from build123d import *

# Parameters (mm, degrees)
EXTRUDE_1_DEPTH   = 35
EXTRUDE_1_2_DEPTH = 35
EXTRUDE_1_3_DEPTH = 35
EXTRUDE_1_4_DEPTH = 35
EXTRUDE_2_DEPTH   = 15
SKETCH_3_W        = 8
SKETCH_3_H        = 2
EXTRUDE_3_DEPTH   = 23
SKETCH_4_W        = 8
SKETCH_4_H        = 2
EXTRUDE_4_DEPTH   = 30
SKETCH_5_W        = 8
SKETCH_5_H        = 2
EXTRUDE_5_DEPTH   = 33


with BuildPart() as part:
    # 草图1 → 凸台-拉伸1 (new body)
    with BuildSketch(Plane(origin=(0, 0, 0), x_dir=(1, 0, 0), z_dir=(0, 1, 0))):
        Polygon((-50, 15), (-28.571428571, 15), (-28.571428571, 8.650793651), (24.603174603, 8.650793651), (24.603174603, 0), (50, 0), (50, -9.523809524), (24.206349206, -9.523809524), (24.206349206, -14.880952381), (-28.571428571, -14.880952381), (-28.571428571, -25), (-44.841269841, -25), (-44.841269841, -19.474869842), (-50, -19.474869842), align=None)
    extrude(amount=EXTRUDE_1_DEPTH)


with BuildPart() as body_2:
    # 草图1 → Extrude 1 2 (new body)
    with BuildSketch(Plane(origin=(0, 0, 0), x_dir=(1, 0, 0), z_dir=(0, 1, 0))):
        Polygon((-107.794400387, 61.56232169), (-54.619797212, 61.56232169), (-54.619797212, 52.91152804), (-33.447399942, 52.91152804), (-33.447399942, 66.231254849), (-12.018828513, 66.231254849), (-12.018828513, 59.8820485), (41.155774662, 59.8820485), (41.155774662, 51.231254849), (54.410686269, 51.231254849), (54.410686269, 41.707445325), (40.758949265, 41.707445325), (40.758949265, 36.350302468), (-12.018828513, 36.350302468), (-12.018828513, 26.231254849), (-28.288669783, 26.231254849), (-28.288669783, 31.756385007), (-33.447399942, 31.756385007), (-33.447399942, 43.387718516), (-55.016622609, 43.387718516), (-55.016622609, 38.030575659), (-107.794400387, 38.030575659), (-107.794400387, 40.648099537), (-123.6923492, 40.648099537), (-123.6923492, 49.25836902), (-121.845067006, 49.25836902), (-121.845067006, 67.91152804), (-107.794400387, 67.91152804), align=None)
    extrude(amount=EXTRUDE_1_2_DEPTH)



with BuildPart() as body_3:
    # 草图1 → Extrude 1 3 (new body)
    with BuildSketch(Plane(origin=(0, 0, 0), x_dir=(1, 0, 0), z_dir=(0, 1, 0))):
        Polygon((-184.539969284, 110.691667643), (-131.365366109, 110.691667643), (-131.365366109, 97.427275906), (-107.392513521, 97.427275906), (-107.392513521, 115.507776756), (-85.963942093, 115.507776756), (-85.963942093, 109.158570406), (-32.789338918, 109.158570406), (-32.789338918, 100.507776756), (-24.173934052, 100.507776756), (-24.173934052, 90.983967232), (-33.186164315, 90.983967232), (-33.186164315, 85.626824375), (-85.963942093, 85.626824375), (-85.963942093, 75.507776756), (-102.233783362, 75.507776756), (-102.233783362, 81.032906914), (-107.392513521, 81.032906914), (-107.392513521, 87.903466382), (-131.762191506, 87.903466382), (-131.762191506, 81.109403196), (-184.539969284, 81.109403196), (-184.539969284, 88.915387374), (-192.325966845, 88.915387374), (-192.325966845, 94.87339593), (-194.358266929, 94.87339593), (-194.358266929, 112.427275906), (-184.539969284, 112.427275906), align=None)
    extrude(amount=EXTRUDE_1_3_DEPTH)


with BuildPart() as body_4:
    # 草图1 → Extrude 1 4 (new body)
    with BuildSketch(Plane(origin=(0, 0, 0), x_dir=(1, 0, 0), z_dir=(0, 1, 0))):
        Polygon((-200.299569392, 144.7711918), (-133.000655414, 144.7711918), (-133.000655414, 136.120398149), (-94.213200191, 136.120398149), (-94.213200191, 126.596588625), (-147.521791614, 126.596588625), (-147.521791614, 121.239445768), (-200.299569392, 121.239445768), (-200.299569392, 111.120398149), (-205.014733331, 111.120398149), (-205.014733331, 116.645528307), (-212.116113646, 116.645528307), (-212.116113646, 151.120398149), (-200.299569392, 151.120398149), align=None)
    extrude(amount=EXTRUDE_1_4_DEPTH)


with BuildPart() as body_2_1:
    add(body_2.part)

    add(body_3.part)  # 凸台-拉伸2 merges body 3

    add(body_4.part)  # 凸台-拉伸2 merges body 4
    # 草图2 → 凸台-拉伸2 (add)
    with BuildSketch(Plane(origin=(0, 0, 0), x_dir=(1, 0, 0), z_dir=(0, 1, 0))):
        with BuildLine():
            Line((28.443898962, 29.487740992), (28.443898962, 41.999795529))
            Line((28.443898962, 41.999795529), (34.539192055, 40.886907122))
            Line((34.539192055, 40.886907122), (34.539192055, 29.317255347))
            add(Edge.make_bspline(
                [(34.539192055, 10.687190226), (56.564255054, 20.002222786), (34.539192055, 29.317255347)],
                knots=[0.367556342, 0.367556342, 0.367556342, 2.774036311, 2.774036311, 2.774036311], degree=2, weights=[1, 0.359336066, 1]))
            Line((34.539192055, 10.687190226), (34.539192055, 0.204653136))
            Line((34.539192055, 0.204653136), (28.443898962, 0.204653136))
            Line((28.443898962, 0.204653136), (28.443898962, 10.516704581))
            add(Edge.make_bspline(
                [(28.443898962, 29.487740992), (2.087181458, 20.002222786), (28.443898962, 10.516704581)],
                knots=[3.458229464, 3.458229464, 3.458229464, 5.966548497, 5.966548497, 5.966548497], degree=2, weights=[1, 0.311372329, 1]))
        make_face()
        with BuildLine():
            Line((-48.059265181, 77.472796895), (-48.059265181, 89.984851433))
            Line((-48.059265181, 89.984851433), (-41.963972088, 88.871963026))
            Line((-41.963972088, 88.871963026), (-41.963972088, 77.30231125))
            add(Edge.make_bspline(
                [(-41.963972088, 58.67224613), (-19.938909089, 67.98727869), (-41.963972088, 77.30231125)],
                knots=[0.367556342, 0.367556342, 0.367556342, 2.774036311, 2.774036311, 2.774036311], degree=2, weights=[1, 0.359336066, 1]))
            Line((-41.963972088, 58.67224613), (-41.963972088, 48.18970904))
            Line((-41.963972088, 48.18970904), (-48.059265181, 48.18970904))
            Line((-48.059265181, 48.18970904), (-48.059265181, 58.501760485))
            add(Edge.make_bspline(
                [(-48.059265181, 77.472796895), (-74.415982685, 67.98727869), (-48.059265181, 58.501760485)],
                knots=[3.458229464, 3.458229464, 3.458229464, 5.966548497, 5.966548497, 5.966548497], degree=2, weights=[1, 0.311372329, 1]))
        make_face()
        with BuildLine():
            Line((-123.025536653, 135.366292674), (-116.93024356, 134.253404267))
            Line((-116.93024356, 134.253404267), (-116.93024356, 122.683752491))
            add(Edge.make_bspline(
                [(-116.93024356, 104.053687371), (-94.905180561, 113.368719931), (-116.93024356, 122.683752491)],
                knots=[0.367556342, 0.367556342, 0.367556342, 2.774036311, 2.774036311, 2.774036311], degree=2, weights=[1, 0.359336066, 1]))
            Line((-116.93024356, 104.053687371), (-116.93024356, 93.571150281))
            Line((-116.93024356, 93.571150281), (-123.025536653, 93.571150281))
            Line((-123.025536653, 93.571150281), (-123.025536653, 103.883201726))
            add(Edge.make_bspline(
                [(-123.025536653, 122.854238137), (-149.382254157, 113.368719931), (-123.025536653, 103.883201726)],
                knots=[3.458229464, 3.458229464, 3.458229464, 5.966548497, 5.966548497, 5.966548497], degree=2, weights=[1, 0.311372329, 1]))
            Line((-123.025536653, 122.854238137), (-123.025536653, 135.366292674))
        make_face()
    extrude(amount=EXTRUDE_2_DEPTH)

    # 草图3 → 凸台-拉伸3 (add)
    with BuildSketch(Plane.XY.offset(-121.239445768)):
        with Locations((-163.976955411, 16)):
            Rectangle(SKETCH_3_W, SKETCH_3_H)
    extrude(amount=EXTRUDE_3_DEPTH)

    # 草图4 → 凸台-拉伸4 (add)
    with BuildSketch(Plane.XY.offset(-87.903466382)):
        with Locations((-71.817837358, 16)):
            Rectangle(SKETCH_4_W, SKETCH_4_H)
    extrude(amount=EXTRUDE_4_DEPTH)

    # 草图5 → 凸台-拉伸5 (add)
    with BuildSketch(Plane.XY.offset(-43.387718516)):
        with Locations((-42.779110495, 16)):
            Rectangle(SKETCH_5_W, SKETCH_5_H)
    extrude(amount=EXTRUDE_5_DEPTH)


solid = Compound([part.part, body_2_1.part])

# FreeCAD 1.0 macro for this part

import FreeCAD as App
import Part
import Sketcher
from FreeCAD import Vector

doc = App.newDocument("Part")
body = doc.addObject("PartDesign::Body", "Body")

sketch1 = body.newObject("Sketcher::SketchObject", "Sketch")
sketch1.AttachmentSupport = (doc.getObject("XZ_Plane"), [""])
sketch1.MapMode = "FlatFace"
sketch1.addGeometry([
    Part.LineSegment(Vector(-29, -15, 0), Vector(-50, -15, 0)),
    Part.LineSegment(Vector(-50, -15, 0), Vector(-50, 19, 0)),
    Part.LineSegment(Vector(-50, 19, 0), Vector(-45, 19, 0)),
    Part.LineSegment(Vector(-45, 19, 0), Vector(-45, 25, 0)),
    Part.LineSegment(Vector(-45, 25, 0), Vector(-29, 25, 0)),
    Part.LineSegment(Vector(-29, 25, 0), Vector(-29, 15, 0)),
    Part.LineSegment(Vector(-29, 15, 0), Vector(24, 15, 0)),
    Part.LineSegment(Vector(24, 15, 0), Vector(24, 10, 0)),
    Part.LineSegment(Vector(24, 10, 0), Vector(50, 10, 0)),
    Part.LineSegment(Vector(50, 10, 0), Vector(50, 0, 0)),
    Part.LineSegment(Vector(50, 0, 0), Vector(25, 0, 0)),
    Part.LineSegment(Vector(25, 0, 0), Vector(25, -9, 0)),
    Part.LineSegment(Vector(25, -9, 0), Vector(-29, -9, 0)),
    Part.LineSegment(Vector(-29, -9, 0), Vector(-29, -15, 0)),
], False)
sketch1.addConstraint([
    Sketcher.Constraint("Coincident", 0, 2, 1, 1),
    Sketcher.Constraint("Coincident", 1, 2, 2, 1),
    Sketcher.Constraint("Coincident", 2, 2, 3, 1),
    Sketcher.Constraint("Coincident", 3, 2, 4, 1),
    Sketcher.Constraint("Coincident", 4, 2, 5, 1),
    Sketcher.Constraint("Coincident", 5, 2, 6, 1),
    Sketcher.Constraint("Coincident", 6, 2, 7, 1),
    Sketcher.Constraint("Coincident", 7, 2, 8, 1),
    Sketcher.Constraint("Coincident", 8, 2, 9, 1),
    Sketcher.Constraint("Coincident", 9, 2, 10, 1),
    Sketcher.Constraint("Coincident", 10, 2, 11, 1),
    Sketcher.Constraint("Coincident", 11, 2, 12, 1),
    Sketcher.Constraint("Coincident", 12, 2, 13, 1),
    Sketcher.Constraint("Coincident", 13, 2, 0, 1),
    Sketcher.Constraint("Horizontal", 0),
    Sketcher.Constraint("Vertical", 1),
    Sketcher.Constraint("Horizontal", 2),
    Sketcher.Constraint("Vertical", 3),
    Sketcher.Constraint("Horizontal", 4),
    Sketcher.Constraint("Vertical", 5),
    Sketcher.Constraint("Horizontal", 6),
    Sketcher.Constraint("Vertical", 7),
    Sketcher.Constraint("Horizontal", 8),
    Sketcher.Constraint("Vertical", 9),
    Sketcher.Constraint("Horizontal", 10),
    Sketcher.Constraint("Vertical", 11),
    Sketcher.Constraint("Horizontal", 12),
    Sketcher.Constraint("Vertical", 13),
    Sketcher.Constraint("PointOnObject", 9, 2, -1),
    Sketcher.Constraint("Vertical", 5, 2, 12, 2),
    Sketcher.Constraint("DistanceX", 0, 2, -1, 1, 50.0),
    Sketcher.Constraint("DistanceY", 0, 2, -1, 1, 15.0),
    Sketcher.Constraint("DistanceY", -1, 1, 3, 2, 25.0),
    Sketcher.Constraint("DistanceX", -1, 1, 8, 2, 50.0),
    Sketcher.Constraint("DistanceX", 0, 2, 0, 1, 21.428571),
    Sketcher.Constraint("DistanceX", 2, 1, 2, 2, 5.15873),
    Sketcher.Constraint("DistanceX", 8, 1, 8, 2, 25.793651),
    Sketcher.Constraint("DistanceY", 1, 1, 1, 2, 34.47487),
    Sketcher.Constraint("DistanceY", 9, 2, 9, 1, 9.52381),
    Sketcher.Constraint("DistanceX", 10, 2, 10, 1, 25.396825),
    Sketcher.Constraint("DistanceY", 5, 2, 5, 1, 10.119048),
    Sketcher.Constraint("DistanceY", 11, 2, 11, 1, 8.650794),
])
pad1 = body.newObject("PartDesign::Pad", "Pad")
pad1.Profile = sketch1
pad1.Length = 35
pad1.Reversed = True
body2 = doc.addObject("PartDesign::Body", "Body001")

sketch2 = body2.newObject("Sketcher::SketchObject", "Sketch001")
sketch2.AttachmentSupport = (doc.getObject("XZ_Plane001"), [""])
sketch2.MapMode = "FlatFace"
sketch2.addGeometry([
    Part.LineSegment(Vector(-54.6, -61.6, 0), Vector(-107.8, -61.6, 0)),
    Part.LineSegment(Vector(-107.8, -61.6, 0), Vector(-107.8, -67.9, 0)),
    Part.LineSegment(Vector(-107.8, -67.9, 0), Vector(-121.8, -67.9, 0)),
    Part.LineSegment(Vector(-121.8, -67.9, 0), Vector(-121.8, -49.3, 0)),
    Part.LineSegment(Vector(-121.8, -49.3, 0), Vector(-123.7, -49.3, 0)),
    Part.LineSegment(Vector(-123.7, -49.3, 0), Vector(-123.7, -40.6, 0)),
    Part.LineSegment(Vector(-123.7, -40.6, 0), Vector(-107.8, -40.6, 0)),
    Part.LineSegment(Vector(-107.8, -40.6, 0), Vector(-107.8, -38, 0)),
    Part.LineSegment(Vector(-107.8, -38, 0), Vector(-55, -38, 0)),
    Part.LineSegment(Vector(-55, -38, 0), Vector(-55, -43.4, 0)),
    Part.LineSegment(Vector(-55, -43.4, 0), Vector(-33.4, -43.4, 0)),
    Part.LineSegment(Vector(-33.4, -43.4, 0), Vector(-33.4, -31.8, 0)),
    Part.LineSegment(Vector(-33.4, -31.8, 0), Vector(-28.3, -31.8, 0)),
    Part.LineSegment(Vector(-28.3, -31.8, 0), Vector(-28.3, -26.2, 0)),
    Part.LineSegment(Vector(-28.3, -26.2, 0), Vector(-12, -26.2, 0)),
    Part.LineSegment(Vector(-12, -26.2, 0), Vector(-12, -36.4, 0)),
    Part.LineSegment(Vector(-12, -36.4, 0), Vector(40.8, -36.4, 0)),
    Part.LineSegment(Vector(40.8, -36.4, 0), Vector(40.8, -41.7, 0)),
    Part.LineSegment(Vector(40.8, -41.7, 0), Vector(54.4, -41.7, 0)),
    Part.LineSegment(Vector(54.4, -41.7, 0), Vector(54.4, -51.2, 0)),
    Part.LineSegment(Vector(54.4, -51.2, 0), Vector(41.2, -51.2, 0)),
    Part.LineSegment(Vector(41.2, -51.2, 0), Vector(41.2, -59.9, 0)),
    Part.LineSegment(Vector(41.2, -59.9, 0), Vector(-12, -59.9, 0)),
    Part.LineSegment(Vector(-12, -59.9, 0), Vector(-12, -66.2, 0)),
    Part.LineSegment(Vector(-12, -66.2, 0), Vector(-33.4, -66.2, 0)),
    Part.LineSegment(Vector(-33.4, -66.2, 0), Vector(-33.4, -52.9, 0)),
    Part.LineSegment(Vector(-33.4, -52.9, 0), Vector(-54.6, -52.9, 0)),
    Part.LineSegment(Vector(-54.6, -52.9, 0), Vector(-54.6, -61.6, 0)),
], False)
sketch2.addConstraint([
    Sketcher.Constraint("Coincident", 0, 2, 1, 1),
    Sketcher.Constraint("Coincident", 1, 2, 2, 1),
    Sketcher.Constraint("Coincident", 2, 2, 3, 1),
    Sketcher.Constraint("Coincident", 3, 2, 4, 1),
    Sketcher.Constraint("Coincident", 4, 2, 5, 1),
    Sketcher.Constraint("Coincident", 5, 2, 6, 1),
    Sketcher.Constraint("Coincident", 6, 2, 7, 1),
    Sketcher.Constraint("Coincident", 7, 2, 8, 1),
    Sketcher.Constraint("Coincident", 8, 2, 9, 1),
    Sketcher.Constraint("Coincident", 9, 2, 10, 1),
    Sketcher.Constraint("Coincident", 10, 2, 11, 1),
    Sketcher.Constraint("Coincident", 11, 2, 12, 1),
    Sketcher.Constraint("Coincident", 12, 2, 13, 1),
    Sketcher.Constraint("Coincident", 13, 2, 14, 1),
    Sketcher.Constraint("Coincident", 14, 2, 15, 1),
    Sketcher.Constraint("Coincident", 15, 2, 16, 1),
    Sketcher.Constraint("Coincident", 16, 2, 17, 1),
    Sketcher.Constraint("Coincident", 17, 2, 18, 1),
    Sketcher.Constraint("Coincident", 18, 2, 19, 1),
    Sketcher.Constraint("Coincident", 19, 2, 20, 1),
    Sketcher.Constraint("Coincident", 20, 2, 21, 1),
    Sketcher.Constraint("Coincident", 21, 2, 22, 1),
    Sketcher.Constraint("Coincident", 22, 2, 23, 1),
    Sketcher.Constraint("Coincident", 23, 2, 24, 1),
    Sketcher.Constraint("Coincident", 24, 2, 25, 1),
    Sketcher.Constraint("Coincident", 25, 2, 26, 1),
    Sketcher.Constraint("Coincident", 26, 2, 27, 1),
    Sketcher.Constraint("Coincident", 27, 2, 0, 1),
    Sketcher.Constraint("Horizontal", 0),
    Sketcher.Constraint("Vertical", 1),
    Sketcher.Constraint("Horizontal", 2),
    Sketcher.Constraint("Vertical", 3),
    Sketcher.Constraint("Horizontal", 4),
    Sketcher.Constraint("Vertical", 5),
    Sketcher.Constraint("Horizontal", 6),
    Sketcher.Constraint("Vertical", 7),
    Sketcher.Constraint("Horizontal", 8),
    Sketcher.Constraint("Vertical", 9),
    Sketcher.Constraint("Horizontal", 10),
    Sketcher.Constraint("Vertical", 11),
    Sketcher.Constraint("Horizontal", 12),
    Sketcher.Constraint("Vertical", 13),
    Sketcher.Constraint("Horizontal", 14),
    Sketcher.Constraint("Vertical", 15),
    Sketcher.Constraint("Horizontal", 16),
    Sketcher.Constraint("Vertical", 17),
    Sketcher.Constraint("Horizontal", 18),
    Sketcher.Constraint("Vertical", 19),
    Sketcher.Constraint("Horizontal", 20),
    Sketcher.Constraint("Vertical", 21),
    Sketcher.Constraint("Horizontal", 22),
    Sketcher.Constraint("Vertical", 23),
    Sketcher.Constraint("Horizontal", 24),
    Sketcher.Constraint("Vertical", 25),
    Sketcher.Constraint("Horizontal", 26),
    Sketcher.Constraint("Vertical", 27),
    Sketcher.Constraint("Vertical", 1, 2, 6, 2),
    Sketcher.Constraint("Vertical", 15, 2, 22, 2),
    Sketcher.Constraint("Vertical", 11, 2, 24, 2),
    Sketcher.Constraint("Equal", 8, 16),
    Sketcher.Constraint("Equal", 0, 22),
    Sketcher.Constraint("Equal", 9, 17),
    Sketcher.Constraint("Equal", 1, 23),
    Sketcher.Constraint("Equal", 21, 27),
    Sketcher.Constraint("DistanceY", 19, 2, 14, 2, 25.0),
    Sketcher.Constraint("DistanceY", 23, 2, 14, 2, 40.0),
    Sketcher.Constraint("DistanceX", 6, 2, 10, 2, 74.347),
    Sketcher.Constraint("DistanceX", 6, 1, 6, 2, 15.897949),
    Sketcher.Constraint("DistanceX", 12, 1, 12, 2, 5.15873),
    Sketcher.Constraint("DistanceX", 14, 1, 14, 2, 16.269841),
    Sketcher.Constraint("DistanceX", 20, 2, 20, 1, 13.254912),
    Sketcher.Constraint("DistanceY", 3, 1, 3, 2, 18.653159),
    Sketcher.Constraint("DistanceY", 5, 1, 5, 2, 8.610269),
    Sketcher.Constraint("DistanceY", 13, 1, 13, 2, 5.52513),
    Sketcher.Constraint("DistanceY", 19, 2, 19, 1, 9.52381),
    Sketcher.Constraint("DistanceX", 0, 2, -1, 1, 107.7944),
    Sketcher.Constraint("DistanceY", 5, 2, -1, 1, 40.6481),
    Sketcher.Constraint("DistanceX", 0, 2, 0, 1, 53.174603),
    Sketcher.Constraint("DistanceX", 2, 2, 2, 1, 14.050667),
    Sketcher.Constraint("DistanceX", 8, 1, 8, 2, 52.777778),
    Sketcher.Constraint("DistanceY", 1, 2, 1, 1, 6.349206),
    Sketcher.Constraint("DistanceY", 7, 1, 7, 2, 2.617524),
    Sketcher.Constraint("DistanceY", 9, 2, 9, 1, 5.357143),
    Sketcher.Constraint("DistanceY", 11, 1, 11, 2, 11.631334),
])
pad2 = body2.newObject("PartDesign::Pad", "Pad001")
pad2.Profile = sketch2
pad2.Length = 35
pad2.Reversed = True
body3 = doc.addObject("PartDesign::Body", "Body002")

sketch3 = body3.newObject("Sketcher::SketchObject", "Sketch002")
sketch3.AttachmentSupport = (doc.getObject("XZ_Plane002"), [""])
sketch3.MapMode = "FlatFace"
sketch3.addGeometry([
    Part.LineSegment(Vector(-131.4, -110.7, 0), Vector(-184.5, -110.7, 0)),
    Part.LineSegment(Vector(-184.5, -110.7, 0), Vector(-184.5, -112.4, 0)),
    Part.LineSegment(Vector(-184.5, -112.4, 0), Vector(-194.4, -112.4, 0)),
    Part.LineSegment(Vector(-194.4, -112.4, 0), Vector(-194.4, -94.9, 0)),
    Part.LineSegment(Vector(-194.4, -94.9, 0), Vector(-192.3, -94.9, 0)),
    Part.LineSegment(Vector(-192.3, -94.9, 0), Vector(-192.3, -88.9, 0)),
    Part.LineSegment(Vector(-192.3, -88.9, 0), Vector(-184.5, -88.9, 0)),
    Part.LineSegment(Vector(-184.5, -88.9, 0), Vector(-184.5, -81.1, 0)),
    Part.LineSegment(Vector(-184.5, -81.1, 0), Vector(-131.8, -81.1, 0)),
    Part.LineSegment(Vector(-131.8, -81.1, 0), Vector(-131.8, -87.9, 0)),
    Part.LineSegment(Vector(-131.8, -87.9, 0), Vector(-107.4, -87.9, 0)),
    Part.LineSegment(Vector(-107.4, -87.9, 0), Vector(-107.4, -81, 0)),
    Part.LineSegment(Vector(-107.4, -81, 0), Vector(-102.2, -81, 0)),
    Part.LineSegment(Vector(-102.2, -81, 0), Vector(-102.2, -75.5, 0)),
    Part.LineSegment(Vector(-102.2, -75.5, 0), Vector(-86, -75.5, 0)),
    Part.LineSegment(Vector(-86, -75.5, 0), Vector(-86, -85.6, 0)),
    Part.LineSegment(Vector(-86, -85.6, 0), Vector(-33.2, -85.6, 0)),
    Part.LineSegment(Vector(-33.2, -85.6, 0), Vector(-33.2, -91, 0)),
    Part.LineSegment(Vector(-33.2, -91, 0), Vector(-24.2, -91, 0)),
    Part.LineSegment(Vector(-24.2, -91, 0), Vector(-24.2, -100.5, 0)),
    Part.LineSegment(Vector(-24.2, -100.5, 0), Vector(-32.8, -100.5, 0)),
    Part.LineSegment(Vector(-32.8, -100.5, 0), Vector(-32.8, -109.2, 0)),
    Part.LineSegment(Vector(-32.8, -109.2, 0), Vector(-86, -109.2, 0)),
    Part.LineSegment(Vector(-86, -109.2, 0), Vector(-86, -115.5, 0)),
    Part.LineSegment(Vector(-86, -115.5, 0), Vector(-107.4, -115.5, 0)),
    Part.LineSegment(Vector(-107.4, -115.5, 0), Vector(-107.4, -97.4, 0)),
    Part.LineSegment(Vector(-107.4, -97.4, 0), Vector(-131.4, -97.4, 0)),
    Part.LineSegment(Vector(-131.4, -97.4, 0), Vector(-131.4, -110.7, 0)),
], False)
sketch3.addConstraint([
    Sketcher.Constraint("Coincident", 0, 2, 1, 1),
    Sketcher.Constraint("Coincident", 1, 2, 2, 1),
    Sketcher.Constraint("Coincident", 2, 2, 3, 1),
    Sketcher.Constraint("Coincident", 3, 2, 4, 1),
    Sketcher.Constraint("Coincident", 4, 2, 5, 1),
    Sketcher.Constraint("Coincident", 5, 2, 6, 1),
    Sketcher.Constraint("Coincident", 6, 2, 7, 1),
    Sketcher.Constraint("Coincident", 7, 2, 8, 1),
    Sketcher.Constraint("Coincident", 8, 2, 9, 1),
    Sketcher.Constraint("Coincident", 9, 2, 10, 1),
    Sketcher.Constraint("Coincident", 10, 2, 11, 1),
    Sketcher.Constraint("Coincident", 11, 2, 12, 1),
    Sketcher.Constraint("Coincident", 12, 2, 13, 1),
    Sketcher.Constraint("Coincident", 13, 2, 14, 1),
    Sketcher.Constraint("Coincident", 14, 2, 15, 1),
    Sketcher.Constraint("Coincident", 15, 2, 16, 1),
    Sketcher.Constraint("Coincident", 16, 2, 17, 1),
    Sketcher.Constraint("Coincident", 17, 2, 18, 1),
    Sketcher.Constraint("Coincident", 18, 2, 19, 1),
    Sketcher.Constraint("Coincident", 19, 2, 20, 1),
    Sketcher.Constraint("Coincident", 20, 2, 21, 1),
    Sketcher.Constraint("Coincident", 21, 2, 22, 1),
    Sketcher.Constraint("Coincident", 22, 2, 23, 1),
    Sketcher.Constraint("Coincident", 23, 2, 24, 1),
    Sketcher.Constraint("Coincident", 24, 2, 25, 1),
    Sketcher.Constraint("Coincident", 25, 2, 26, 1),
    Sketcher.Constraint("Coincident", 26, 2, 27, 1),
    Sketcher.Constraint("Coincident", 27, 2, 0, 1),
    Sketcher.Constraint("Horizontal", 0),
    Sketcher.Constraint("Vertical", 1),
    Sketcher.Constraint("Horizontal", 2),
    Sketcher.Constraint("Vertical", 3),
    Sketcher.Constraint("Horizontal", 4),
    Sketcher.Constraint("Vertical", 5),
    Sketcher.Constraint("Horizontal", 6),
    Sketcher.Constraint("Vertical", 7),
    Sketcher.Constraint("Horizontal", 8),
    Sketcher.Constraint("Vertical", 9),
    Sketcher.Constraint("Horizontal", 10),
    Sketcher.Constraint("Vertical", 11),
    Sketcher.Constraint("Horizontal", 12),
    Sketcher.Constraint("Vertical", 13),
    Sketcher.Constraint("Horizontal", 14),
    Sketcher.Constraint("Vertical", 15),
    Sketcher.Constraint("Horizontal", 16),
    Sketcher.Constraint("Vertical", 17),
    Sketcher.Constraint("Horizontal", 18),
    Sketcher.Constraint("Vertical", 19),
    Sketcher.Constraint("Horizontal", 20),
    Sketcher.Constraint("Vertical", 21),
    Sketcher.Constraint("Horizontal", 22),
    Sketcher.Constraint("Vertical", 23),
    Sketcher.Constraint("Horizontal", 24),
    Sketcher.Constraint("Vertical", 25),
    Sketcher.Constraint("Horizontal", 26),
    Sketcher.Constraint("Vertical", 27),
    Sketcher.Constraint("Vertical", 1, 2, 6, 2),
    Sketcher.Constraint("Vertical", 15, 2, 22, 2),
    Sketcher.Constraint("Vertical", 11, 2, 24, 2),
    Sketcher.Constraint("Equal", 8, 16),
    Sketcher.Constraint("Equal", 0, 22),
    Sketcher.Constraint("DistanceY", 19, 2, 14, 2, 25.0),
    Sketcher.Constraint("DistanceY", 23, 2, 14, 2, 40.0),
    Sketcher.Constraint("DistanceX", 4, 1, 4, 2, 2.0323),
    Sketcher.Constraint("DistanceY", 25, 1, 25, 2, 18.080501),
    Sketcher.Constraint("DistanceX", 12, 1, 12, 2, 5.15873),
    Sketcher.Constraint("DistanceX", 14, 1, 14, 2, 16.269841),
    Sketcher.Constraint("DistanceX", 18, 1, 18, 2, 9.01223),
    Sketcher.Constraint("DistanceY", 1, 2, 1, 1, 1.735608),
    Sketcher.Constraint("DistanceY", 3, 1, 3, 2, 17.55388),
    Sketcher.Constraint("DistanceY", 5, 1, 5, 2, 5.958009),
    Sketcher.Constraint("DistanceY", 11, 1, 11, 2, 6.870559),
    Sketcher.Constraint("DistanceY", 13, 1, 13, 2, 5.52513),
    Sketcher.Constraint("DistanceY", 19, 2, 19, 1, 9.52381),
    Sketcher.Constraint("DistanceY", 27, 2, 27, 1, 13.264392),
    Sketcher.Constraint("DistanceX", 0, 2, 0, 1, 53.174603),
    Sketcher.Constraint("DistanceX", 2, 2, 2, 1, 9.818298),
    Sketcher.Constraint("DistanceX", 8, 1, 8, 2, 52.777778),
    Sketcher.Constraint("DistanceX", 10, 1, 10, 2, 24.369678),
    Sketcher.Constraint("DistanceY", 7, 1, 7, 2, 7.805984),
    Sketcher.Constraint("DistanceY", 15, 2, 15, 1, 10.119048),
    Sketcher.Constraint("DistanceY", 21, 2, 21, 1, 8.650794),
    Sketcher.Constraint("DistanceX", 0, 2, -1, 1, 184.539969),
    Sketcher.Constraint("DistanceY", 21, 2, -1, 1, 109.15857),
])
pad3 = body3.newObject("PartDesign::Pad", "Pad002")
pad3.Profile = sketch3
pad3.Length = 35
pad3.Reversed = True
body4 = doc.addObject("PartDesign::Body", "Body003")

sketch4 = body4.newObject("Sketcher::SketchObject", "Sketch003")
sketch4.AttachmentSupport = (doc.getObject("XZ_Plane003"), [""])
sketch4.MapMode = "FlatFace"
sketch4.addGeometry([
    Part.LineSegment(Vector(-133, -144.8, 0), Vector(-200.3, -144.8, 0)),
    Part.LineSegment(Vector(-200.3, -144.8, 0), Vector(-200.3, -151.1, 0)),
    Part.LineSegment(Vector(-200.3, -151.1, 0), Vector(-212.1, -151.1, 0)),
    Part.LineSegment(Vector(-212.1, -151.1, 0), Vector(-212.1, -116.6, 0)),
    Part.LineSegment(Vector(-212.1, -116.6, 0), Vector(-205, -116.6, 0)),
    Part.LineSegment(Vector(-205, -116.6, 0), Vector(-205, -111.1, 0)),
    Part.LineSegment(Vector(-205, -111.1, 0), Vector(-200.3, -111.1, 0)),
    Part.LineSegment(Vector(-200.3, -111.1, 0), Vector(-200.3, -121.2, 0)),
    Part.LineSegment(Vector(-200.3, -121.2, 0), Vector(-147.5, -121.2, 0)),
    Part.LineSegment(Vector(-147.5, -121.2, 0), Vector(-147.5, -126.6, 0)),
    Part.LineSegment(Vector(-147.5, -126.6, 0), Vector(-94.2, -126.6, 0)),
    Part.LineSegment(Vector(-94.2, -126.6, 0), Vector(-94.2, -136.1, 0)),
    Part.LineSegment(Vector(-94.2, -136.1, 0), Vector(-133, -136.1, 0)),
    Part.LineSegment(Vector(-133, -136.1, 0), Vector(-133, -144.8, 0)),
], False)
sketch4.addConstraint([
    Sketcher.Constraint("Coincident", 0, 2, 1, 1),
    Sketcher.Constraint("Coincident", 1, 2, 2, 1),
    Sketcher.Constraint("Coincident", 2, 2, 3, 1),
    Sketcher.Constraint("Coincident", 3, 2, 4, 1),
    Sketcher.Constraint("Coincident", 4, 2, 5, 1),
    Sketcher.Constraint("Coincident", 5, 2, 6, 1),
    Sketcher.Constraint("Coincident", 6, 2, 7, 1),
    Sketcher.Constraint("Coincident", 7, 2, 8, 1),
    Sketcher.Constraint("Coincident", 8, 2, 9, 1),
    Sketcher.Constraint("Coincident", 9, 2, 10, 1),
    Sketcher.Constraint("Coincident", 10, 2, 11, 1),
    Sketcher.Constraint("Coincident", 11, 2, 12, 1),
    Sketcher.Constraint("Coincident", 12, 2, 13, 1),
    Sketcher.Constraint("Coincident", 13, 2, 0, 1),
    Sketcher.Constraint("Horizontal", 0),
    Sketcher.Constraint("Vertical", 1),
    Sketcher.Constraint("Horizontal", 2),
    Sketcher.Constraint("Vertical", 3),
    Sketcher.Constraint("Horizontal", 4),
    Sketcher.Constraint("Vertical", 5),
    Sketcher.Constraint("Horizontal", 6),
    Sketcher.Constraint("Vertical", 7),
    Sketcher.Constraint("Horizontal", 8),
    Sketcher.Constraint("Vertical", 9),
    Sketcher.Constraint("Horizontal", 10),
    Sketcher.Constraint("Vertical", 11),
    Sketcher.Constraint("Horizontal", 12),
    Sketcher.Constraint("Vertical", 13),
    Sketcher.Constraint("Vertical", 1, 2, 6, 2),
    Sketcher.Constraint("DistanceY", 1, 2, 5, 2, 40.0),
    Sketcher.Constraint("DistanceX", 4, 1, 4, 2, 7.10138),
    Sketcher.Constraint("DistanceX", 10, 1, 10, 2, 53.308591),
    Sketcher.Constraint("DistanceY", 3, 1, 3, 2, 34.47487),
    Sketcher.Constraint("DistanceY", 11, 2, 11, 1, 9.52381),
    Sketcher.Constraint("DistanceY", 1, 2, -1, 1, 151.120398),
    Sketcher.Constraint("DistanceX", 10, 2, -1, 1, 94.2132),
    Sketcher.Constraint("DistanceY", 11, 2, -1, 1, 136.120398),
    Sketcher.Constraint("DistanceX", 0, 2, 0, 1, 67.298914),
    Sketcher.Constraint("DistanceX", 2, 2, 2, 1, 11.816544),
    Sketcher.Constraint("DistanceX", 8, 1, 8, 2, 52.777778),
    Sketcher.Constraint("DistanceY", 1, 2, 1, 1, 6.349206),
    Sketcher.Constraint("DistanceY", 7, 2, 7, 1, 10.119048),
])
pad4 = body4.newObject("PartDesign::Pad", "Pad003")
pad4.Profile = sketch4
pad4.Length = 35
pad4.Reversed = True
body2.AllowCompound = True
doc.recompute()

boolean = body2.newObject("PartDesign::Boolean", "Boolean")
boolean.Type = "Fuse"
boolean.addObjects([body3])
doc.recompute()

boolean2 = body2.newObject("PartDesign::Boolean", "Boolean001")
boolean2.Type = "Fuse"
boolean2.addObjects([body4])

sketch5 = body2.newObject("Sketcher::SketchObject", "Sketch004")
sketch5.AttachmentSupport = (doc.getObject("XZ_Plane001"), [""])
sketch5.MapMode = "FlatFace"
sketch5.addGeometry([
    Part.LineSegment(Vector(28.443899, -41.999796, 0), Vector(28.443899, -29.487741, 0)),
    Part.BSplineCurve([Vector(28.443899, -29.487741, 0), Vector(2.087181, -20.002223, 0), Vector(28.443899, -10.516705, 0)], [3, 3], [3.458229464, 5.966548497], False, 2, [1, 0.311372329, 1], False),
    Part.LineSegment(Vector(28.443899, -10.516705, 0), Vector(28.443899, -0.204653, 0)),
    Part.LineSegment(Vector(28.443899, -0.204653, 0), Vector(34.539192, -0.204653, 0)),
    Part.LineSegment(Vector(34.539192, -0.204653, 0), Vector(34.539192, -10.68719, 0)),
    Part.BSplineCurve([Vector(34.539192, -10.68719, 0), Vector(56.564255, -20.002223, 0), Vector(34.539192, -29.317255, 0)], [3, 3], [0.367556342, 2.774036311], False, 2, [1, 0.359336066, 1], False),
    Part.LineSegment(Vector(34.539192, -29.317255, 0), Vector(34.539192, -40.886907, 0)),
    Part.LineSegment(Vector(34.539192, -40.886907, 0), Vector(28.443899, -41.999796, 0)),
    Part.LineSegment(Vector(-48.059265, -89.984851, 0), Vector(-48.059265, -77.472797, 0)),
    Part.BSplineCurve([Vector(-48.059265, -77.472797, 0), Vector(-74.415983, -67.987279, 0), Vector(-48.059265, -58.50176, 0)], [3, 3], [3.458229464, 5.966548497], False, 2, [1, 0.311372329, 1], False),
    Part.LineSegment(Vector(-48.059265, -58.50176, 0), Vector(-48.059265, -48.189709, 0)),
    Part.LineSegment(Vector(-48.059265, -48.189709, 0), Vector(-41.963972, -48.189709, 0)),
    Part.LineSegment(Vector(-41.963972, -48.189709, 0), Vector(-41.963972, -58.672246, 0)),
    Part.BSplineCurve([Vector(-41.963972, -58.672246, 0), Vector(-19.938909, -67.987279, 0), Vector(-41.963972, -77.302311, 0)], [3, 3], [0.367556342, 2.774036311], False, 2, [1, 0.359336066, 1], False),
    Part.LineSegment(Vector(-41.963972, -77.302311, 0), Vector(-41.963972, -88.871963, 0)),
    Part.LineSegment(Vector(-41.963972, -88.871963, 0), Vector(-48.059265, -89.984851, 0)),
    Part.LineSegment(Vector(-116.930244, -134.253404, 0), Vector(-123.025537, -135.366293, 0)),
    Part.LineSegment(Vector(-123.025537, -135.366293, 0), Vector(-123.025537, -122.854238, 0)),
    Part.BSplineCurve([Vector(-123.025537, -122.854238, 0), Vector(-149.382254, -113.36872, 0), Vector(-123.025537, -103.883202, 0)], [3, 3], [3.458229464, 5.966548497], False, 2, [1, 0.311372329, 1], False),
    Part.LineSegment(Vector(-123.025537, -103.883202, 0), Vector(-123.025537, -93.57115, 0)),
    Part.LineSegment(Vector(-123.025537, -93.57115, 0), Vector(-116.930244, -93.57115, 0)),
    Part.LineSegment(Vector(-116.930244, -93.57115, 0), Vector(-116.930244, -104.053687, 0)),
    Part.BSplineCurve([Vector(-116.930244, -104.053687, 0), Vector(-94.905181, -113.36872, 0), Vector(-116.930244, -122.683752, 0)], [3, 3], [0.367556342, 2.774036311], False, 2, [1, 0.359336066, 1], False),
    Part.LineSegment(Vector(-116.930244, -122.683752, 0), Vector(-116.930244, -134.253404, 0)),
], False)
sketch5.addConstraint([
    Sketcher.Constraint("Block", 1),
    Sketcher.Constraint("Block", 5),
    Sketcher.Constraint("Block", 9),
    Sketcher.Constraint("Block", 13),
    Sketcher.Constraint("Block", 18),
    Sketcher.Constraint("Block", 22),
    Sketcher.Constraint("Coincident", 0, 2, 1, 1),
    Sketcher.Constraint("Coincident", 1, 2, 2, 1),
    Sketcher.Constraint("Coincident", 2, 2, 3, 1),
    Sketcher.Constraint("Coincident", 3, 2, 4, 1),
    Sketcher.Constraint("Coincident", 4, 2, 5, 1),
    Sketcher.Constraint("Coincident", 5, 2, 6, 1),
    Sketcher.Constraint("Coincident", 6, 2, 7, 1),
    Sketcher.Constraint("Coincident", 7, 2, 0, 1),
    Sketcher.Constraint("Coincident", 8, 2, 9, 1),
    Sketcher.Constraint("Coincident", 9, 2, 10, 1),
    Sketcher.Constraint("Coincident", 10, 2, 11, 1),
    Sketcher.Constraint("Coincident", 11, 2, 12, 1),
    Sketcher.Constraint("Coincident", 12, 2, 13, 1),
    Sketcher.Constraint("Coincident", 13, 2, 14, 1),
    Sketcher.Constraint("Coincident", 14, 2, 15, 1),
    Sketcher.Constraint("Coincident", 15, 2, 8, 1),
    Sketcher.Constraint("Coincident", 16, 2, 17, 1),
    Sketcher.Constraint("Coincident", 17, 2, 18, 1),
    Sketcher.Constraint("Coincident", 18, 2, 19, 1),
    Sketcher.Constraint("Coincident", 19, 2, 20, 1),
    Sketcher.Constraint("Coincident", 20, 2, 21, 1),
    Sketcher.Constraint("Coincident", 21, 2, 22, 1),
    Sketcher.Constraint("Coincident", 22, 2, 23, 1),
    Sketcher.Constraint("Coincident", 23, 2, 16, 1),
    Sketcher.Constraint("Vertical", 0),
    Sketcher.Constraint("Vertical", 2),
    Sketcher.Constraint("Horizontal", 3),
    Sketcher.Constraint("Vertical", 4),
    Sketcher.Constraint("Vertical", 6),
    Sketcher.Constraint("Vertical", 8),
    Sketcher.Constraint("Vertical", 10),
    Sketcher.Constraint("Horizontal", 11),
    Sketcher.Constraint("Vertical", 12),
    Sketcher.Constraint("Vertical", 14),
    Sketcher.Constraint("Vertical", 17),
    Sketcher.Constraint("Vertical", 19),
    Sketcher.Constraint("Horizontal", 20),
    Sketcher.Constraint("Vertical", 21),
    Sketcher.Constraint("Vertical", 23),
    Sketcher.Constraint("DistanceY", 8, 2, 7, 2, 35.473001),
    Sketcher.Constraint("DistanceY", 2, 1, 2, 2, 10.312051),
    Sketcher.Constraint("DistanceY", 6, 2, 6, 1, 11.569652),
    Sketcher.Constraint("DistanceY", 10, 1, 10, 2, 10.312051),
    Sketcher.Constraint("DistanceY", 14, 2, 14, 1, 11.569652),
    Sketcher.Constraint("DistanceY", 19, 1, 19, 2, 10.312051),
    Sketcher.Constraint("DistanceY", 23, 2, 23, 1, 11.569652),
    Sketcher.Constraint("DistanceY", 19, 2, 15, 2, 3.586299),
    Sketcher.Constraint("DistanceY", 17, 1, 17, 2, 12.512055),
])
pad5 = body2.newObject("PartDesign::Pad", "Pad004")
pad5.Profile = sketch5
pad5.Length = 15
pad5.Reversed = True

sketch6 = body2.newObject("Sketcher::SketchObject", "Sketch005")
sketch6.AttachmentSupport = (doc.getObject("XY_Plane001"), [""])
sketch6.MapMode = "FlatFace"
sketch6.AttachmentOffset = App.Placement(Vector(0, 0, -121.239446), App.Rotation())
sketch6.addGeometry([
    Part.LineSegment(Vector(-168, 17, 0), Vector(-168, 15, 0)),
    Part.LineSegment(Vector(-168, 15, 0), Vector(-160, 15, 0)),
    Part.LineSegment(Vector(-160, 15, 0), Vector(-160, 17, 0)),
    Part.LineSegment(Vector(-160, 17, 0), Vector(-168, 17, 0)),
], False)
sketch6.addConstraint([
    Sketcher.Constraint("Coincident", 0, 2, 1, 1),
    Sketcher.Constraint("Coincident", 1, 2, 2, 1),
    Sketcher.Constraint("Coincident", 2, 2, 3, 1),
    Sketcher.Constraint("Coincident", 3, 2, 0, 1),
    Sketcher.Constraint("Vertical", 0),
    Sketcher.Constraint("Horizontal", 1),
    Sketcher.Constraint("Vertical", 2),
    Sketcher.Constraint("Horizontal", 3),
    Sketcher.Constraint("DistanceX", 1, 1, 1, 2, 8.0),
    Sketcher.Constraint("DistanceY", 0, 2, 0, 1, 2.0),
    Sketcher.Constraint("DistanceY", -1, 1, 0, 2, 15.0),
    Sketcher.Constraint("DistanceX", 0, 2, -1, 1, 167.976955),
])
pad6 = body2.newObject("PartDesign::Pad", "Pad005")
pad6.Profile = sketch6
pad6.Length = 23

sketch7 = body2.newObject("Sketcher::SketchObject", "Sketch006")
sketch7.AttachmentSupport = (doc.getObject("XY_Plane001"), [""])
sketch7.MapMode = "FlatFace"
sketch7.AttachmentOffset = App.Placement(Vector(0, 0, -87.903466), App.Rotation())
sketch7.addGeometry([
    Part.LineSegment(Vector(-75.8, 17, 0), Vector(-75.8, 15, 0)),
    Part.LineSegment(Vector(-75.8, 15, 0), Vector(-67.8, 15, 0)),
    Part.LineSegment(Vector(-67.8, 15, 0), Vector(-67.8, 17, 0)),
    Part.LineSegment(Vector(-67.8, 17, 0), Vector(-75.8, 17, 0)),
], False)
sketch7.addConstraint([
    Sketcher.Constraint("Coincident", 0, 2, 1, 1),
    Sketcher.Constraint("Coincident", 1, 2, 2, 1),
    Sketcher.Constraint("Coincident", 2, 2, 3, 1),
    Sketcher.Constraint("Coincident", 3, 2, 0, 1),
    Sketcher.Constraint("Vertical", 0),
    Sketcher.Constraint("Horizontal", 1),
    Sketcher.Constraint("Vertical", 2),
    Sketcher.Constraint("Horizontal", 3),
    Sketcher.Constraint("DistanceX", 1, 1, 1, 2, 8.0),
    Sketcher.Constraint("DistanceY", 0, 2, 0, 1, 2.0),
    Sketcher.Constraint("DistanceY", -1, 1, 0, 2, 15.0),
    Sketcher.Constraint("DistanceX", 0, 2, -1, 1, 75.817837),
])
pad7 = body2.newObject("PartDesign::Pad", "Pad006")
pad7.Profile = sketch7
pad7.Length = 30

sketch8 = body2.newObject("Sketcher::SketchObject", "Sketch007")
sketch8.AttachmentSupport = (doc.getObject("XY_Plane001"), [""])
sketch8.MapMode = "FlatFace"
sketch8.AttachmentOffset = App.Placement(Vector(0, 0, -43.387719), App.Rotation())
sketch8.addGeometry([
    Part.LineSegment(Vector(-46.8, 17, 0), Vector(-46.8, 15, 0)),
    Part.LineSegment(Vector(-46.8, 15, 0), Vector(-38.8, 15, 0)),
    Part.LineSegment(Vector(-38.8, 15, 0), Vector(-38.8, 17, 0)),
    Part.LineSegment(Vector(-38.8, 17, 0), Vector(-46.8, 17, 0)),
], False)
sketch8.addConstraint([
    Sketcher.Constraint("Coincident", 0, 2, 1, 1),
    Sketcher.Constraint("Coincident", 1, 2, 2, 1),
    Sketcher.Constraint("Coincident", 2, 2, 3, 1),
    Sketcher.Constraint("Coincident", 3, 2, 0, 1),
    Sketcher.Constraint("Vertical", 0),
    Sketcher.Constraint("Horizontal", 1),
    Sketcher.Constraint("Vertical", 2),
    Sketcher.Constraint("Horizontal", 3),
    Sketcher.Constraint("DistanceX", 1, 1, 1, 2, 8.0),
    Sketcher.Constraint("DistanceY", 0, 2, 0, 1, 2.0),
    Sketcher.Constraint("DistanceY", -1, 1, 0, 2, 15.0),
    Sketcher.Constraint("DistanceX", 0, 2, -1, 1, 46.77911),
])
pad8 = body2.newObject("PartDesign::Pad", "Pad007")
pad8.Profile = sketch8
pad8.Length = 33

doc.recompute()
